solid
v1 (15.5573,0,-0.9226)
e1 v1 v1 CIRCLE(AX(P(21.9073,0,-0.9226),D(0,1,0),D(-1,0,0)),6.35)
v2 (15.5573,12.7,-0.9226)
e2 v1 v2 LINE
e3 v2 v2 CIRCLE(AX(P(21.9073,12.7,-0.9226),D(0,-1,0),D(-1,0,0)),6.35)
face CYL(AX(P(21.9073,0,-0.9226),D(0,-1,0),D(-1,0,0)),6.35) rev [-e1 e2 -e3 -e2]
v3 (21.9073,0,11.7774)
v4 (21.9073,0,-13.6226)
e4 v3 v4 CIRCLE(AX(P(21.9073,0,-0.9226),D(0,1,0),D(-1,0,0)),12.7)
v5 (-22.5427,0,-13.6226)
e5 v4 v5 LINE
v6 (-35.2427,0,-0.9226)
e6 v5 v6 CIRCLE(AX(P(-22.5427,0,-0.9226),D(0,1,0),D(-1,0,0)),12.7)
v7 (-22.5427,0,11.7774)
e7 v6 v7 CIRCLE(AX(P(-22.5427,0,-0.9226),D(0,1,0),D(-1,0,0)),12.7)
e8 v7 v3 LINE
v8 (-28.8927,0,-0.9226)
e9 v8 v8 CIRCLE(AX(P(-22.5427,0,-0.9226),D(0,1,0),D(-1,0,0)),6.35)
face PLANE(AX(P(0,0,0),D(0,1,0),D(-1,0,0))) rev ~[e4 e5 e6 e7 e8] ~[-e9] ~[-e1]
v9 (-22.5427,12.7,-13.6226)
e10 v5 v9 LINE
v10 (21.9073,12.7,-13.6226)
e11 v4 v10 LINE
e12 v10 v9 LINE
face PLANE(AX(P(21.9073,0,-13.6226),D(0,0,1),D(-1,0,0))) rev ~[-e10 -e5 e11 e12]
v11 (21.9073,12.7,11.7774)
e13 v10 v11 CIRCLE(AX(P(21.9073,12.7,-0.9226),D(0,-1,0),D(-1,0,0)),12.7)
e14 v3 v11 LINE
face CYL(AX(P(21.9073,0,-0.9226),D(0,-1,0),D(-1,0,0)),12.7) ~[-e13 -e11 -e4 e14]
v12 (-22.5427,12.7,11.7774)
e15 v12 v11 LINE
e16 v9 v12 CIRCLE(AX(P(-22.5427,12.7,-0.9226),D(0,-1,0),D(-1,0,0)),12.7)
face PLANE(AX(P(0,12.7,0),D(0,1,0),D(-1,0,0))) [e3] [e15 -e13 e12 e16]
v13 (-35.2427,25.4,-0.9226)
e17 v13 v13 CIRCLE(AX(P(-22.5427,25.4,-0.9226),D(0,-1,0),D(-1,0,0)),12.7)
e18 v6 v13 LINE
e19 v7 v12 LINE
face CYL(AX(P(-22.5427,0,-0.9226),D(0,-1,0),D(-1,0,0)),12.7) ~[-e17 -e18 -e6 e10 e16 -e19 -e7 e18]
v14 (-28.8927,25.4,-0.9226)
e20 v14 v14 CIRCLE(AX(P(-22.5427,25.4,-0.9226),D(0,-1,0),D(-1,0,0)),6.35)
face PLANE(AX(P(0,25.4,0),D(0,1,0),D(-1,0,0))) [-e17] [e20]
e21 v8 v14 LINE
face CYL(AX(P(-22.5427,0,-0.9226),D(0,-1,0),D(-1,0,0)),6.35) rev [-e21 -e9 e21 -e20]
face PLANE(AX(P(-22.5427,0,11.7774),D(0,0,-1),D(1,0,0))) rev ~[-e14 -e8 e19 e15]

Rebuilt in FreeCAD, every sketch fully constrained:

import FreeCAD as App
import Part
import Sketcher
from FreeCAD import Vector
Q = App.Units.Quantity

doc = App.newDocument("Part")
body = doc.addObject("PartDesign::Body", "Body")

# Sketch on XZ plane
sketch1 = body.newObject("Sketcher::SketchObject", "Sketch")
sketch1.AttachmentSupport = (doc.getObject("XZ_Plane"), [""])
sketch1.MapMode = "FlatFace"
sketch1.addGeometry(Part.LineSegment(Vector(22, -14, 0), Vector(-23, -14, 0)), False)
sketch1.addGeometry(Part.LineSegment(Vector(-23, -14, 0), Vector(-23, 12, 0)), False)
sketch1.addGeometry(Part.LineSegment(Vector(-23, 12, 0), Vector(22, 12, 0)), False)
sketch1.addGeometry(Part.LineSegment(Vector(22, 12, 0), Vector(22, -14, 0)), False)
sketch1.addConstraint(Sketcher.Constraint("Coincident", 0, 2, 1, 1))
sketch1.addConstraint(Sketcher.Constraint("Coincident", 1, 2, 2, 1))
sketch1.addConstraint(Sketcher.Constraint("Coincident", 2, 2, 3, 1))
sketch1.addConstraint(Sketcher.Constraint("Coincident", 3, 2, 0, 1))
sketch1.addConstraint(Sketcher.Constraint("Horizontal", 0))
sketch1.addConstraint(Sketcher.Constraint("Vertical", 1))
sketch1.addConstraint(Sketcher.Constraint("Horizontal", 2))
sketch1.addConstraint(Sketcher.Constraint("Vertical", 3))
sketch1.addConstraint(Sketcher.Constraint("DistanceY", 1, 1, 1, 2, Q("1 in")))
sketch1.addConstraint(Sketcher.Constraint("DistanceX", 0, 2, 0, 1, Q("1.75 in")))
sketch1.addConstraint(Sketcher.Constraint("DistanceX", 0, 2, -1, 1, Q("0.8875 in")))
sketch1.addConstraint(Sketcher.Constraint("DistanceY", 0, 2, -1, 1, 13.6226))
pad1 = body.newObject("PartDesign::Pad", "Pad")
pad1.Profile = sketch1
pad1.Length = Q("0.5 in")
pad1.Reversed = True

# Sketch on XZ plane
sketch2 = body.newObject("Sketcher::SketchObject", "Sketch001")
sketch2.AttachmentSupport = (doc.getObject("XZ_Plane"), [""])
sketch2.MapMode = "FlatFace"
sketch2.addGeometry(Part.Circle(Vector(22, -1, 0), Vector(0, 0, 1), 13), False)
sketch2.addGeometry(Part.Circle(Vector(22, -1, 0), Vector(0, 0, 1), 6), False)
sketch2.addConstraint(Sketcher.Constraint("Coincident", 1, 3, 0, 3))
sketch2.addConstraint(Sketcher.Constraint("Diameter", 0, Q("1 in")))
sketch2.addConstraint(Sketcher.Constraint("Diameter", 1, Q("0.5 in")))
sketch2.addConstraint(Sketcher.Constraint("DistanceX", -1, 1, 0, 3, Q("0.8625 in")))
sketch2.addConstraint(Sketcher.Constraint("DistanceY", 0, 3, -1, 1, 0.9226))
pad2 = body.newObject("PartDesign::Pad", "Pad001")
pad2.Profile = sketch2
pad2.Length = Q("0.5 in")
pad2.Reversed = True

# Sketch on XZ plane
sketch3 = body.newObject("Sketcher::SketchObject", "Sketch002")
sketch3.AttachmentSupport = (doc.getObject("XZ_Plane"), [""])
sketch3.MapMode = "FlatFace"
sketch3.addGeometry(Part.Circle(Vector(22, -1, 0), Vector(0, 0, 1), 6), False)
sketch3.addConstraint(Sketcher.Constraint("Diameter", 0, Q("0.5 in")))
sketch3.addConstraint(Sketcher.Constraint("DistanceX", -1, 1, 0, 3, Q("0.8625 in")))
sketch3.addConstraint(Sketcher.Constraint("DistanceY", 0, 3, -1, 1, 0.9226))
pocket1 = body.newObject("PartDesign::Pocket", "Pocket")
pocket1.Profile = sketch3
pocket1.Length = Q("0.5 in")

# Sketch on XZ plane
sketch4 = body.newObject("Sketcher::SketchObject", "Sketch003")
sketch4.AttachmentSupport = (doc.getObject("XZ_Plane"), [""])
sketch4.MapMode = "FlatFace"
sketch4.addGeometry(Part.Circle(Vector(-23, -1, 0), Vector(0, 0, 1), 13), False)
sketch4.addGeometry(Part.Circle(Vector(-23, -1, 0), Vector(0, 0, 1), 6), False)
sketch4.addConstraint(Sketcher.Constraint("Coincident", 1, 3, 0, 3))
sketch4.addConstraint(Sketcher.Constraint("Diameter", 0, Q("1 in")))
sketch4.addConstraint(Sketcher.Constraint("Diameter", 1, Q("0.5 in")))
sketch4.addConstraint(Sketcher.Constraint("DistanceX", 0, 3, -1, 1, Q("0.8875 in")))
sketch4.addConstraint(Sketcher.Constraint("DistanceY", 0, 3, -1, 1, 0.9226))
pad3 = body.newObject("PartDesign::Pad", "Pad002")
pad3.Profile = sketch4
pad3.Length = Q("1 in")
pad3.Reversed = True

# Sketch on XZ plane
sketch5 = body.newObject("Sketcher::SketchObject", "Sketch004")
sketch5.AttachmentSupport = (doc.getObject("XZ_Plane"), [""])
sketch5.MapMode = "FlatFace"
sketch5.addGeometry(Part.Circle(Vector(-23, -1, 0), Vector(0, 0, 1), 6), False)
sketch5.addConstraint(Sketcher.Constraint("Diameter", 0, Q("0.5 in")))
sketch5.addConstraint(Sketcher.Constraint("DistanceX", 0, 3, -1, 1, Q("0.8875 in")))
sketch5.addConstraint(Sketcher.Constraint("DistanceY", 0, 3, -1, 1, 0.9226))
pocket2 = body.newObject("PartDesign::Pocket", "Pocket001")
pocket2.Profile = sketch5
pocket2.Length = Q("1 in")
pocket2.Reversed = True

# Sketch on XZ plane
sketch6 = body.newObject("Sketcher::SketchObject", "Sketch005")
sketch6.AttachmentSupport = (doc.getObject("XZ_Plane"), [""])
sketch6.MapMode = "FlatFace"
sketch6.addGeometry(Part.Circle(Vector(-23, -1, 0), Vector(0, 0, 1), 6), False)
sketch6.addConstraint(Sketcher.Constraint("Diameter", 0, Q("0.5 in")))
sketch6.addConstraint(Sketcher.Constraint("DistanceX", 0, 3, -1, 1, Q("0.8875 in")))
sketch6.addConstraint(Sketcher.Constraint("DistanceY", 0, 3, -1, 1, 0.9226))
pocket3 = body.newObject("PartDesign::Pocket", "Pocket002")
pocket3.Profile = sketch6
pocket3.Length = Q("1 in")

doc.recompute()
